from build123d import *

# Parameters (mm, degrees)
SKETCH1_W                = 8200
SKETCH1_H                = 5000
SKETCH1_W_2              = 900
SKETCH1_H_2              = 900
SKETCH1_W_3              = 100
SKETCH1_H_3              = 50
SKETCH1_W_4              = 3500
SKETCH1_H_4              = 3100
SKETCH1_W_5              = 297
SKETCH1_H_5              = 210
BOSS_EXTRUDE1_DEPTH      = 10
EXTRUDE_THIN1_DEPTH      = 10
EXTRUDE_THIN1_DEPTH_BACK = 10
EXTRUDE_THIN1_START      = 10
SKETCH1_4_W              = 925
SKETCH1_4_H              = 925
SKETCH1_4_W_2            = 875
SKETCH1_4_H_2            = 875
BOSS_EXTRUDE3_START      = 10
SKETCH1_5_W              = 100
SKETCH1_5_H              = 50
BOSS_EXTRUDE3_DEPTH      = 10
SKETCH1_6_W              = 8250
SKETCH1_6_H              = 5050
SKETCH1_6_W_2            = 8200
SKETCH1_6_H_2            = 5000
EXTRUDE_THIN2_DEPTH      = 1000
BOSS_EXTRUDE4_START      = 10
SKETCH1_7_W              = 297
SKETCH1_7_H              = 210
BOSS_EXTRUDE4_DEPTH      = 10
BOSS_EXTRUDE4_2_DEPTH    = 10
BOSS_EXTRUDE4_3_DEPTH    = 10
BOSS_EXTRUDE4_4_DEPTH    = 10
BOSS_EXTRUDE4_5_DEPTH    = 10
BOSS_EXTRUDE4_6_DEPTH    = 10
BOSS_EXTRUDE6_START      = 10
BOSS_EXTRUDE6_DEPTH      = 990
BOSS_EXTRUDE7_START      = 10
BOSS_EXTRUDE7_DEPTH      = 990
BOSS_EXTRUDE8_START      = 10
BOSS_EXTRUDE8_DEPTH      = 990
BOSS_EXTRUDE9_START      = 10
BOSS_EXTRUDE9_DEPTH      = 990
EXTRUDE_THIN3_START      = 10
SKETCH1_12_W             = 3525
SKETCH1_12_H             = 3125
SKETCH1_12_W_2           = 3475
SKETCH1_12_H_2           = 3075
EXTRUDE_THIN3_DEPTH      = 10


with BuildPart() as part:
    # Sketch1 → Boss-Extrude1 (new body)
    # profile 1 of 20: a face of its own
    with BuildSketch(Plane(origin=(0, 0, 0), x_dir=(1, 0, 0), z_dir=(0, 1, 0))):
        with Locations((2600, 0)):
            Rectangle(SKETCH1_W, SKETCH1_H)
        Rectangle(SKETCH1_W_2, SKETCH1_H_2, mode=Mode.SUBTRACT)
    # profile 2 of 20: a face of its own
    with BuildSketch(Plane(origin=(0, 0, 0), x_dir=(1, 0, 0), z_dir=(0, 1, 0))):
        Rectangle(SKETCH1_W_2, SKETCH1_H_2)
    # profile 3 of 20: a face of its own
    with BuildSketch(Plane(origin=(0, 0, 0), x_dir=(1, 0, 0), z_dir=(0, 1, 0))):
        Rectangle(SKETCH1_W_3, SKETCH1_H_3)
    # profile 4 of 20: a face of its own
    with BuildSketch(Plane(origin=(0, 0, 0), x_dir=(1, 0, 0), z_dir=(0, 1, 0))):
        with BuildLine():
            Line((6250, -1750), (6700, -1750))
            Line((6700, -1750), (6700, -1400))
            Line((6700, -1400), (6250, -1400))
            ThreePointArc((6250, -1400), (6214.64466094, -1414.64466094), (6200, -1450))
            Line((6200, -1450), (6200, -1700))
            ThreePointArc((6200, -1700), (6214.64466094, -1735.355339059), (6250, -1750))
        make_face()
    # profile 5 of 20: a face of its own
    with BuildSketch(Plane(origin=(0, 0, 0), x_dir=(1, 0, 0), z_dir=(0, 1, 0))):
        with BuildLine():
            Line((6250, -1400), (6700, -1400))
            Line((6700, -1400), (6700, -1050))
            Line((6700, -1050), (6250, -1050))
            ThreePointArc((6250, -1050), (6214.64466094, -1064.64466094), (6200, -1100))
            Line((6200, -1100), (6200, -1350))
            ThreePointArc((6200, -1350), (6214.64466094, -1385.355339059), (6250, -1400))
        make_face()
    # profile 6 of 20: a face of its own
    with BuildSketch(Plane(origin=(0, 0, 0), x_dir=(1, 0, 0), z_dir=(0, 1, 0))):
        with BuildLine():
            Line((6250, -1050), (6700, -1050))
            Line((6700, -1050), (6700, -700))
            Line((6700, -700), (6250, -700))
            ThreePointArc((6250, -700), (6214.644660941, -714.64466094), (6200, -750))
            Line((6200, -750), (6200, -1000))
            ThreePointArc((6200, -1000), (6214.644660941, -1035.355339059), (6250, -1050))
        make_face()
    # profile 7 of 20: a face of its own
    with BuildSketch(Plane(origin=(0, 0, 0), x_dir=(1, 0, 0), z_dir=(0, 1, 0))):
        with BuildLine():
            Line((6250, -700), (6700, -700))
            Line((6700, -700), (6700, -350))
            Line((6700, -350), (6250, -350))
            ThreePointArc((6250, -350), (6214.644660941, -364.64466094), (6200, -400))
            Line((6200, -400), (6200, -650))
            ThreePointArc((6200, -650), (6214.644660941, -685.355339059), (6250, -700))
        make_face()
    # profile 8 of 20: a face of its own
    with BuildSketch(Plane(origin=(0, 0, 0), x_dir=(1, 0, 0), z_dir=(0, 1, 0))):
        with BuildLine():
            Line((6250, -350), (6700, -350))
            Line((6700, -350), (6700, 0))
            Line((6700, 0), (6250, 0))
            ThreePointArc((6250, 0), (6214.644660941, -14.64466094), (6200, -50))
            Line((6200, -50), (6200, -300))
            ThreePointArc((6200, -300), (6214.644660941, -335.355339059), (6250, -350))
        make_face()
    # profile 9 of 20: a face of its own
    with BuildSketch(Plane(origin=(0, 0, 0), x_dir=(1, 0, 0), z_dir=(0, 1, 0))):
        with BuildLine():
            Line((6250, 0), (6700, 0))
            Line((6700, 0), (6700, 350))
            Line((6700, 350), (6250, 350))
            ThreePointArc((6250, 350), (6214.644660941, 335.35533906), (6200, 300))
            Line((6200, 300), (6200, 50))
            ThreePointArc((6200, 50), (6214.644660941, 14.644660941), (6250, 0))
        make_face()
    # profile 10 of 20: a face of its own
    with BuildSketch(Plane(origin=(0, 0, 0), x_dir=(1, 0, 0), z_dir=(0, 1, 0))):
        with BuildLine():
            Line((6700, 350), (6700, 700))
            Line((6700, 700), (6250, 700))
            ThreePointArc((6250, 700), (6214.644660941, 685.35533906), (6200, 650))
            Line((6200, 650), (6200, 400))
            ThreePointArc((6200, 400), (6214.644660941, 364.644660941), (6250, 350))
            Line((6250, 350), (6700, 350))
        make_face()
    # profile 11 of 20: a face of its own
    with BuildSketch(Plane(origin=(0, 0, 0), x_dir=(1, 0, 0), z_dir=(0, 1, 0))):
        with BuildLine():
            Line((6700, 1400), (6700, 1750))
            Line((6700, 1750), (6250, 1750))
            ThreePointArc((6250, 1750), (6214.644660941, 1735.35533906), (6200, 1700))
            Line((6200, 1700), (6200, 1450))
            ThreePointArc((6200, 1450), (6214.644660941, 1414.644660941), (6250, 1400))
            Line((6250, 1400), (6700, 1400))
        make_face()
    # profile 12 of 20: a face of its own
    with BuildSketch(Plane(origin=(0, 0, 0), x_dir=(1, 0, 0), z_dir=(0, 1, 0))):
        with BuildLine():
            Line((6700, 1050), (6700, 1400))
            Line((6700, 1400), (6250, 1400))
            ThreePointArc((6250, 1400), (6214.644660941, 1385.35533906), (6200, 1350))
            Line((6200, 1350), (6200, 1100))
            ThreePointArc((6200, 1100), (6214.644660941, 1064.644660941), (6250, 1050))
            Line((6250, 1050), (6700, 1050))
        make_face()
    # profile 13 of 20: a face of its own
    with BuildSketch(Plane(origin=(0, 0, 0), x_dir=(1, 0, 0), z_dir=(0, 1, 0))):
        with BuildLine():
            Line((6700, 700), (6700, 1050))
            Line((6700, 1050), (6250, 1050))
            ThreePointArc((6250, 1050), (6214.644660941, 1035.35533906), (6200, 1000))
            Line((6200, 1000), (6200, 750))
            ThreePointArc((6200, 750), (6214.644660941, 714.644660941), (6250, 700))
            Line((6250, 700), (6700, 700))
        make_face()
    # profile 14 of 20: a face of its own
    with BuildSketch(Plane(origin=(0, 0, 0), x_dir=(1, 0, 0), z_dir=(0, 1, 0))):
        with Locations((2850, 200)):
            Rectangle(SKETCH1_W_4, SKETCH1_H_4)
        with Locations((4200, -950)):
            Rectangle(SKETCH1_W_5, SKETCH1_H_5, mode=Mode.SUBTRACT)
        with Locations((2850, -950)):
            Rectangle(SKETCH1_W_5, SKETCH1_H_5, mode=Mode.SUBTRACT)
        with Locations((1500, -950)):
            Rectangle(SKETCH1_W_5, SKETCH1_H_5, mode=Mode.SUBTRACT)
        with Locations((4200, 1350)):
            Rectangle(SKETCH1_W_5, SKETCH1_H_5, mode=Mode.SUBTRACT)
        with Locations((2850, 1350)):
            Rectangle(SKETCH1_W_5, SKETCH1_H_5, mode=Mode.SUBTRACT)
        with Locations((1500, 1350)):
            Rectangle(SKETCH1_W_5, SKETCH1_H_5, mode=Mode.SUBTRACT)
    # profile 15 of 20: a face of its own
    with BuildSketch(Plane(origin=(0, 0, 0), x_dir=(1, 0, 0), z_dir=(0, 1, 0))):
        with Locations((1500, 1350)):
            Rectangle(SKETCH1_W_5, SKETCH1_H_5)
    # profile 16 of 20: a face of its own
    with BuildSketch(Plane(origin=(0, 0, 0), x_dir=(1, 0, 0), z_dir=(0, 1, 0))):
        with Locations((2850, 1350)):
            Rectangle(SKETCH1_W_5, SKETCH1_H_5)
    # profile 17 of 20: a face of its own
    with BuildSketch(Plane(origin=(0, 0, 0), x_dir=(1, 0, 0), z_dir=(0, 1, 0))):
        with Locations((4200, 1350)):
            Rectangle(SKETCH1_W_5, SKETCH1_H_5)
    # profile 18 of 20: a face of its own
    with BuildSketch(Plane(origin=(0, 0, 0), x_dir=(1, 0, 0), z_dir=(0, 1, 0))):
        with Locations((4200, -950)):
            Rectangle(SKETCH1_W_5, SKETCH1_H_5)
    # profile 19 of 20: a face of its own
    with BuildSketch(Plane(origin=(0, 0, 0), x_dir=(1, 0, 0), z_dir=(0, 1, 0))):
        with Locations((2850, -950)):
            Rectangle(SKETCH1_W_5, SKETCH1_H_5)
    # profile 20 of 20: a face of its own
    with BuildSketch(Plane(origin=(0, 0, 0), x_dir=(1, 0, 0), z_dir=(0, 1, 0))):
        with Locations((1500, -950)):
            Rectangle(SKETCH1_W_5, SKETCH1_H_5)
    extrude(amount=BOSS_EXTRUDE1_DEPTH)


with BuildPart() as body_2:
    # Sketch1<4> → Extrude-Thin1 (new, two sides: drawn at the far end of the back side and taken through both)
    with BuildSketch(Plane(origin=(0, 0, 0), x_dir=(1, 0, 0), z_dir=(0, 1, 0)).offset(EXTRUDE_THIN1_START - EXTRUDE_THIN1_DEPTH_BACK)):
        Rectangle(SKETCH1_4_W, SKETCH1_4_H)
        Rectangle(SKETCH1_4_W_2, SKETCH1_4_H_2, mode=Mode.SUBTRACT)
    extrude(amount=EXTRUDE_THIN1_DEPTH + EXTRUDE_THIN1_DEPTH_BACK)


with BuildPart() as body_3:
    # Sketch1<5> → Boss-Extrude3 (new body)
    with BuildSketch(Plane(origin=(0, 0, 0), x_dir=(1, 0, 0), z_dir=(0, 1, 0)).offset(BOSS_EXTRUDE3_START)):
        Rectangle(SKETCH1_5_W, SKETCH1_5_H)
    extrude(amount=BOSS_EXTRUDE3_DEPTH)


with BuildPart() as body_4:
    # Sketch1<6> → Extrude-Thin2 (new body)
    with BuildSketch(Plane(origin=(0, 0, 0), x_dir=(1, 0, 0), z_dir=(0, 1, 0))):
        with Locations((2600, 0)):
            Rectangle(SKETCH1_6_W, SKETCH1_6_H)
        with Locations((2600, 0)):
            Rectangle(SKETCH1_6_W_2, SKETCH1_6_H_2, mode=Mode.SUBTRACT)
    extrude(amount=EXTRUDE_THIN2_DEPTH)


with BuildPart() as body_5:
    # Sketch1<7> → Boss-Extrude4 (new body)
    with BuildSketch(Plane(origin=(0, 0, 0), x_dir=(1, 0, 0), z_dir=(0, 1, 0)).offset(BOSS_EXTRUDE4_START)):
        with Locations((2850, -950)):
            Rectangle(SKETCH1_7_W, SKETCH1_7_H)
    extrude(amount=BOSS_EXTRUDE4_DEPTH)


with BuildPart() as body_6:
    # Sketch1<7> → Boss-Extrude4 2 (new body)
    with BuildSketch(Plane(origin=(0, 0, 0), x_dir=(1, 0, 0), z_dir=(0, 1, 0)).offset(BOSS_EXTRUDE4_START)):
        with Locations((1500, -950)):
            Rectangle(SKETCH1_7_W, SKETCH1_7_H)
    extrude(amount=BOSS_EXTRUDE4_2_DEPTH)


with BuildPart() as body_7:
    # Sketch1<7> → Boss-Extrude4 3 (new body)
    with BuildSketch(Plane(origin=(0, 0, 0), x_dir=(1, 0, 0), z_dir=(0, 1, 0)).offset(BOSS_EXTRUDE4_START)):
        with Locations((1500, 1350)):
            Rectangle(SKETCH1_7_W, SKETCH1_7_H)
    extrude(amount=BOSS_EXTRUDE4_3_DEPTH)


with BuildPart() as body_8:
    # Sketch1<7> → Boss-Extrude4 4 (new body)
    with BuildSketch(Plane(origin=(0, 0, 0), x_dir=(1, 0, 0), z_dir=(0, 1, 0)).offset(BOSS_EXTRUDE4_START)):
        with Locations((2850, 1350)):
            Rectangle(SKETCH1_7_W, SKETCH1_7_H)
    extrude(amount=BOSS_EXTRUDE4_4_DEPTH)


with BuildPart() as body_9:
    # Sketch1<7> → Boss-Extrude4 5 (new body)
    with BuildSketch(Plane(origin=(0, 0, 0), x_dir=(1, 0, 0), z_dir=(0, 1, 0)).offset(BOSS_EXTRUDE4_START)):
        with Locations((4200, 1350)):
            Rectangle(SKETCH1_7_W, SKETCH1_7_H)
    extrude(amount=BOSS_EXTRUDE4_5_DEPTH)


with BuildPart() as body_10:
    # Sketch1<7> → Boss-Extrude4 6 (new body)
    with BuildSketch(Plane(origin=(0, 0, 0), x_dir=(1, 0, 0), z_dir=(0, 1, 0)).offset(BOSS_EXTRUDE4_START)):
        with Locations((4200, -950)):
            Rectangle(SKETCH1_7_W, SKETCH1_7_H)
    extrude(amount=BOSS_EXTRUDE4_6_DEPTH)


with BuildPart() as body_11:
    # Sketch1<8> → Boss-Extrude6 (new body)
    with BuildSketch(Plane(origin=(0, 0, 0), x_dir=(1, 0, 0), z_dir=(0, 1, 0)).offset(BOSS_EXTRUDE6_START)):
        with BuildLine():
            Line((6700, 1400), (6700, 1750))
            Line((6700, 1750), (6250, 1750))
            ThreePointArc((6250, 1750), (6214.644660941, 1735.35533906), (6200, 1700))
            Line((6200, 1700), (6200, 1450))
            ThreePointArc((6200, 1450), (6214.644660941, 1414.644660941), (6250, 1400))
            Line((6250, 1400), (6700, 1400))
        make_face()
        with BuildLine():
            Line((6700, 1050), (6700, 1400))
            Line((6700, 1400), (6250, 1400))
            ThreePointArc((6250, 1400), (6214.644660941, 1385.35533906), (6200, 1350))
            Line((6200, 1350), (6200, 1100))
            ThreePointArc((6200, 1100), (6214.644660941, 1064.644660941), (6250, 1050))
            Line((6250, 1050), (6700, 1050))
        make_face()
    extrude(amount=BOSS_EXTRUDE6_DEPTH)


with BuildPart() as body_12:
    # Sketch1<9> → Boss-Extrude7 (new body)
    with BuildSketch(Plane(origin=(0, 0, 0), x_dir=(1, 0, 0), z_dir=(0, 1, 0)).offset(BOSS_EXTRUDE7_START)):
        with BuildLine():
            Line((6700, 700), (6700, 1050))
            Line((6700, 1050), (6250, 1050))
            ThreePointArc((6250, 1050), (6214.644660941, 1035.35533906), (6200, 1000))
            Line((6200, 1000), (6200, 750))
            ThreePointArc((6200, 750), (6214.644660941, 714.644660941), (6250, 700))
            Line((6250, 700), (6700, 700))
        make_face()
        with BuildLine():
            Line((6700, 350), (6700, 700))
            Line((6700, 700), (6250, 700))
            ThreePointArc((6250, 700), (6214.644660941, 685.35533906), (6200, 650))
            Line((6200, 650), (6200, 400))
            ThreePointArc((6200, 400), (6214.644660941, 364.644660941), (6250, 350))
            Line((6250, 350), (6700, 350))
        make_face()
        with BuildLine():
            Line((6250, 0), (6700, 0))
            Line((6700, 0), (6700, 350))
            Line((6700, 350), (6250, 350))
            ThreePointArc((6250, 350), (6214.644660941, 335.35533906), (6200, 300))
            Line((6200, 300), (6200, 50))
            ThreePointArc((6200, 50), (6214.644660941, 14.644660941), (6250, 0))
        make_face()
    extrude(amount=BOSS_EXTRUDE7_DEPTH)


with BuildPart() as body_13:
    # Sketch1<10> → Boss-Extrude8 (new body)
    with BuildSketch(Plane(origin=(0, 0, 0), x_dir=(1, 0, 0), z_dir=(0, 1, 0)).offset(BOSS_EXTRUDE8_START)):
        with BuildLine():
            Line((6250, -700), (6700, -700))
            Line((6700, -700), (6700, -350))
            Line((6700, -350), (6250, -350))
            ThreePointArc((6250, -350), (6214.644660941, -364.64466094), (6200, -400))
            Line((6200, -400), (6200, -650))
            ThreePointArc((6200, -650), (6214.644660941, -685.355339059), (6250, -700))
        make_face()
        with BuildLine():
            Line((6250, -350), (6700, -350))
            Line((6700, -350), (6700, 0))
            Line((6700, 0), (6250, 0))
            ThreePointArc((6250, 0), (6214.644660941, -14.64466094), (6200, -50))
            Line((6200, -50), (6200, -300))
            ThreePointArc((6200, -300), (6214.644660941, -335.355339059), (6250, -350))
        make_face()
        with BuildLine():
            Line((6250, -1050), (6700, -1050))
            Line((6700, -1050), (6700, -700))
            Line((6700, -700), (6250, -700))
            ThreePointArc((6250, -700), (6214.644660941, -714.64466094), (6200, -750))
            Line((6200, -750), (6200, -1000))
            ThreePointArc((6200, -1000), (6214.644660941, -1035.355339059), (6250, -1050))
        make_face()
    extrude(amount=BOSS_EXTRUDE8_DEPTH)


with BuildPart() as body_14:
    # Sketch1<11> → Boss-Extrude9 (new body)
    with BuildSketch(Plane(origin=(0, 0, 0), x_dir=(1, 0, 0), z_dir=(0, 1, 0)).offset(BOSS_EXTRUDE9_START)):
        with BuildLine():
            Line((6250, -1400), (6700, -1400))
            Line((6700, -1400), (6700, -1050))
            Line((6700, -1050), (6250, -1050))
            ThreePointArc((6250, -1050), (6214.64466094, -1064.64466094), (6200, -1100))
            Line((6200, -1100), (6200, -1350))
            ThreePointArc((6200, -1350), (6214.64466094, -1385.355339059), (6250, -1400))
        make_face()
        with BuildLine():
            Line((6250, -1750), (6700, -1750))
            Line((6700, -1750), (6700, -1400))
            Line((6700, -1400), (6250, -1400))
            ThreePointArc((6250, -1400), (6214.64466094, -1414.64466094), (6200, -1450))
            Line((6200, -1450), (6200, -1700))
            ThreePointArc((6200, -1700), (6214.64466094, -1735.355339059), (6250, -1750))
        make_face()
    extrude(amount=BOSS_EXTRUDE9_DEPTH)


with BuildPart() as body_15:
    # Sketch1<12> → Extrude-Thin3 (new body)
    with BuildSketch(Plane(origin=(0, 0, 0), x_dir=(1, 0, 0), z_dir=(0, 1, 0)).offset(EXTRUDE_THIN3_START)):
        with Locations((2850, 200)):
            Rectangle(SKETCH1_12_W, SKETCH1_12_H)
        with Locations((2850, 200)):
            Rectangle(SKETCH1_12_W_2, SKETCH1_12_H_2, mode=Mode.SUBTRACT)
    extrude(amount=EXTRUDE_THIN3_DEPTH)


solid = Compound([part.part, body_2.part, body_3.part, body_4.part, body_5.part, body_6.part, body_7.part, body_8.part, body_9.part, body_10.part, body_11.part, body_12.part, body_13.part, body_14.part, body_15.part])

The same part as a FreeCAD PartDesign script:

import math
import FreeCAD as App
import Part
import Sketcher
from FreeCAD import Vector
Q = App.Units.Quantity


def add_polygon(sketch, points):
    """Adds a closed chain of lines whose ends are joined by coincident constraints."""
    first, n = sketch.GeometryCount, len(points)
    for a, b in zip(points, points[1:] + points[:1]):
        sketch.addGeometry(Part.LineSegment(App.Vector(*a, 0), App.Vector(*b, 0)), False)
    for i in range(n):
        sketch.addConstraint(Sketcher.Constraint("Coincident", first + i, 2, first + (i + 1) % n, 1))

doc = App.newDocument("Part")
params = doc.addObject("Spreadsheet::Sheet", "Params")
for row, (alias, value) in enumerate([
    ("sketch1_width", "8200 mm"),
    ("sketch1_height", "5000 mm"),
    ("pad1_length", "10 mm"),
    ("sketch2_width", "925 mm"),
    ("sketch2_width2", "875 mm"),
    ("pad2_length", "10 mm"),
    ("pad2_length2", "10 mm"),
    ("sketch3_width", "100 mm"),
    ("sketch3_height", "50 mm"),
    ("pad3_length", "10 mm"),
    ("sketch4_width", "8250 mm"),
    ("sketch4_width2", "8200 mm"),
    ("sketch4_height", "5050 mm"),
    ("sketch4_height2", "5000 mm"),
    ("pad4_length", "1000 mm"),
    ("sketch5_width", "297 mm"),
    ("sketch5_height", "210 mm"),
    ("pad5_length", "10 mm"),
    ("sketch6_width", "297 mm"),
    ("sketch6_height", "210 mm"),
    ("pad6_length", "10 mm"),
    ("sketch7_width", "297 mm"),
    ("sketch7_height", "210 mm"),
    ("pad7_length", "10 mm"),
    ("sketch8_width", "297 mm"),
    ("sketch8_height", "210 mm"),
    ("pad8_length", "10 mm"),
    ("sketch9_width", "297 mm"),
    ("sketch9_height", "210 mm"),
    ("pad9_length", "10 mm"),
    ("sketch10_width", "297 mm"),
    ("sketch10_height", "210 mm"),
    ("pad10_length", "10 mm"),
    ("sketch11_radius", "50 mm"),
    ("sketch11_width", "450 mm"),
    ("sketch11_height", "250 mm"),
    ("pad11_length", "990 mm"),
    ("sketch12_radius", "50 mm"),
    ("sketch12_width", "450 mm"),
    ("sketch12_height", "250 mm"),
    ("pad12_length", "990 mm"),
    ("sketch13_radius", "50 mm"),
    ("sketch13_width", "450 mm"),
    ("sketch13_height", "250 mm"),
    ("pad13_length", "990 mm"),
    ("sketch14_radius", "50 mm"),
    ("sketch14_width", "450 mm"),
    ("sketch14_height", "250 mm"),
    ("pad14_length", "990 mm"),
    ("sketch15_width", "3525 mm"),
    ("sketch15_width2", "3475 mm"),
    ("sketch15_height", "3125 mm"),
    ("sketch15_height2", "3075 mm"),
    ("pad15_length", "10 mm"),
], start=1):
    params.set(f"A{row}", alias)
    params.set(f"B{row}", "=" + value)
    params.setAlias(f"B{row}", alias)

body = doc.addObject("PartDesign::Body", "Body")

# Sketch on XZ plane
sketch1 = doc.addObject("Sketcher::SketchObject", "Sketch")
body.addObject(sketch1)
sketch1.AttachmentSupport = (doc.XZ_Plane, [""])
sketch1.MapMode = "FlatFace"
add_polygon(sketch1, [(-1500, -2500), (-1500, 2500), (6700, 2500), (6700, -2500)])  # lines 0-3
sketch1.addConstraint([
    Sketcher.Constraint("Vertical", 0),
    Sketcher.Constraint("Horizontal", 1),
    Sketcher.Constraint("Vertical", 2),
    Sketcher.Constraint("Horizontal", 3),
    Sketcher.Constraint("DistanceX", 1, 1, 1, 2, Q("8200 mm")),
    Sketcher.Constraint("DistanceY", 0, 1, 0, 2, Q("5000 mm")),
    Sketcher.Constraint("DistanceX", 0, 2, -1, 1, Q("1500 mm")),
    Sketcher.Constraint("DistanceY", -1, 1, 0, 2, Q("2500 mm")),
])
sketch1.setExpression("Constraints[8]", "Params.sketch1_width")
sketch1.setExpression("Constraints[9]", "Params.sketch1_height")
pad1 = doc.addObject("PartDesign::Pad", "Pad")
body.addObject(pad1)
pad1.Profile = sketch1
pad1.setExpression("Length", "Params.pad1_length")
pad1.Reversed = True
body2 = doc.addObject("PartDesign::Body", "Body001")

# Sketch on XZ plane
sketch2 = doc.addObject("Sketcher::SketchObject", "Sketch001")
body2.addObject(sketch2)
sketch2.AttachmentSupport = (doc.getObject("XZ_Plane001"), [""])
sketch2.MapMode = "FlatFace"
sketch2.AttachmentOffset = App.Placement(Vector(0, 0, -10), App.Rotation())
add_polygon(sketch2, [(-462, -462), (-462, 462), (462, 462), (462, -462)])  # lines 0-3
add_polygon(sketch2, [(438, 438), (-438, 438), (-438, -438), (438, -438)])  # lines 4-7
sketch2.addConstraint([
    Sketcher.Constraint("Vertical", 0),
    Sketcher.Constraint("Horizontal", 1),
    Sketcher.Constraint("Vertical", 2),
    Sketcher.Constraint("Horizontal", 3),
    Sketcher.Constraint("Horizontal", 4),
    Sketcher.Constraint("Vertical", 5),
    Sketcher.Constraint("Horizontal", 6),
    Sketcher.Constraint("Vertical", 7),
    Sketcher.Constraint("Symmetric", 0, 2, 2, 2, -1, 1),
    Sketcher.Constraint("Symmetric", 4, 2, 6, 2, -1, 1),
    Sketcher.Constraint("Equal", 3, 0),
    Sketcher.Constraint("Equal", 6, 5),
    Sketcher.Constraint("DistanceX", 1, 1, 1, 2, Q("925 mm")),
    Sketcher.Constraint("DistanceX", 4, 2, 4, 1, Q("875 mm")),
])
sketch2.setExpression("Constraints[20]", "Params.sketch2_width")
sketch2.setExpression("Constraints[21]", "Params.sketch2_width2")
pad2 = doc.addObject("PartDesign::Pad", "Pad001")
body2.addObject(pad2)
pad2.Profile = sketch2
pad2.Type = "TwoLengths"
pad2.setExpression("Length", "Params.pad2_length")
pad2.setExpression("Length2", "Params.pad2_length2")
pad2.Reversed = True
body3 = doc.addObject("PartDesign::Body", "Body002")

# Sketch on XZ plane
sketch3 = doc.addObject("Sketcher::SketchObject", "Sketch002")
body3.addObject(sketch3)
sketch3.AttachmentSupport = (doc.getObject("XZ_Plane002"), [""])
sketch3.MapMode = "FlatFace"
sketch3.AttachmentOffset = App.Placement(Vector(0, 0, -10), App.Rotation())
add_polygon(sketch3, [(-50, -25), (-50, 25), (50, 25), (50, -25)])  # lines 0-3
sketch3.addConstraint([
    Sketcher.Constraint("Vertical", 0),
    Sketcher.Constraint("Horizontal", 1),
    Sketcher.Constraint("Vertical", 2),
    Sketcher.Constraint("Horizontal", 3),
    Sketcher.Constraint("Symmetric", 0, 2, 2, 2, -1, 1),
    Sketcher.Constraint("DistanceX", 1, 1, 1, 2, Q("100 mm")),
    Sketcher.Constraint("DistanceY", 0, 1, 0, 2, Q("50 mm")),
])
sketch3.setExpression("Constraints[9]", "Params.sketch3_width")
sketch3.setExpression("Constraints[10]", "Params.sketch3_height")
pad3 = doc.addObject("PartDesign::Pad", "Pad002")
body3.addObject(pad3)
pad3.Profile = sketch3
pad3.setExpression("Length", "Params.pad3_length")
pad3.Reversed = True
body4 = doc.addObject("PartDesign::Body", "Body003")

# Sketch on XZ plane
sketch4 = doc.addObject("Sketcher::SketchObject", "Sketch003")
body4.addObject(sketch4)
sketch4.AttachmentSupport = (doc.getObject("XZ_Plane003"), [""])
sketch4.MapMode = "FlatFace"
add_polygon(sketch4, [(-1525, -2525), (-1525, 2525), (6725, 2525), (6725, -2525)])  # lines 0-3
add_polygon(sketch4, [(6700, 2500), (-1500, 2500), (-1500, -2500), (6700, -2500)])  # lines 4-7
sketch4.addConstraint([
    Sketcher.Constraint("Vertical", 0),
    Sketcher.Constraint("Horizontal", 1),
    Sketcher.Constraint("Vertical", 2),
    Sketcher.Constraint("Horizontal", 3),
    Sketcher.Constraint("Horizontal", 4),
    Sketcher.Constraint("Vertical", 5),
    Sketcher.Constraint("Horizontal", 6),
    Sketcher.Constraint("Vertical", 7),
    Sketcher.Constraint("DistanceX", 1, 1, 1, 2, Q("8250 mm")),
    Sketcher.Constraint("DistanceX", 4, 2, 4, 1, Q("8200 mm")),
    Sketcher.Constraint("DistanceY", 0, 1, 0, 2, Q("5050 mm")),
    Sketcher.Constraint("DistanceY", 5, 2, 5, 1, Q("5000 mm")),
    Sketcher.Constraint("DistanceX", 0, 2, -1, 1, Q("1525 mm")),
    Sketcher.Constraint("DistanceY", -1, 1, 0, 2, Q("2525 mm")),
    Sketcher.Constraint("DistanceX", 4, 2, -1, 1, Q("1500 mm")),
    Sketcher.Constraint("DistanceY", -1, 1, 4, 2, Q("2500 mm")),
])
sketch4.setExpression("Constraints[16]", "Params.sketch4_width")
sketch4.setExpression("Constraints[17]", "Params.sketch4_width2")
sketch4.setExpression("Constraints[18]", "Params.sketch4_height")
sketch4.setExpression("Constraints[19]", "Params.sketch4_height2")
pad4 = doc.addObject("PartDesign::Pad", "Pad003")
body4.addObject(pad4)
pad4.Profile = sketch4
pad4.setExpression("Length", "Params.pad4_length")
pad4.Reversed = True
body5 = doc.addObject("PartDesign::Body", "Body004")

# Sketch on XZ plane
sketch5 = doc.addObject("Sketcher::SketchObject", "Sketch004")
body5.addObject(sketch5)
sketch5.AttachmentSupport = (doc.getObject("XZ_Plane004"), [""])
sketch5.MapMode = "FlatFace"
sketch5.AttachmentOffset = App.Placement(Vector(0, 0, -10), App.Rotation())
add_polygon(sketch5, [(2702, 845), (2702, 1055), (2998, 1055), (2998, 845)])  # lines 0-3
sketch5.addConstraint([
    Sketcher.Constraint("Vertical", 0),
    Sketcher.Constraint("Horizontal", 1),
    Sketcher.Constraint("Vertical", 2),
    Sketcher.Constraint("Horizontal", 3),
    Sketcher.Constraint("DistanceX", 1, 1, 1, 2, Q("297 mm")),
    Sketcher.Constraint("DistanceY", 0, 1, 0, 2, Q("210 mm")),
    Sketcher.Constraint("DistanceY", -1, 1, 0, 2, Q("1055 mm")),
    Sketcher.Constraint("DistanceX", -1, 1, 0, 2, Q("2701.5 mm")),
])
sketch5.setExpression("Constraints[8]", "Params.sketch5_width")
sketch5.setExpression("Constraints[9]", "Params.sketch5_height")
pad5 = doc.addObject("PartDesign::Pad", "Pad004")
body5.addObject(pad5)
pad5.Profile = sketch5
pad5.setExpression("Length", "Params.pad5_length")
pad5.Reversed = True
body6 = doc.addObject("PartDesign::Body", "Body005")

# Sketch on XZ plane
sketch6 = doc.addObject("Sketcher::SketchObject", "Sketch005")
body6.addObject(sketch6)
sketch6.AttachmentSupport = (doc.getObject("XZ_Plane005"), [""])
sketch6.MapMode = "FlatFace"
sketch6.AttachmentOffset = App.Placement(Vector(0, 0, -10), App.Rotation())
add_polygon(sketch6, [(1352, 845), (1352, 1055), (1648, 1055), (1648, 845)])  # lines 0-3
sketch6.addConstraint([
    Sketcher.Constraint("Vertical", 0),
    Sketcher.Constraint("Horizontal", 1),
    Sketcher.Constraint("Vertical", 2),
    Sketcher.Constraint("Horizontal", 3),
    Sketcher.Constraint("DistanceX", 1, 1, 1, 2, Q("297 mm")),
    Sketcher.Constraint("DistanceY", 0, 1, 0, 2, Q("210 mm")),
    Sketcher.Constraint("DistanceY", -1, 1, 0, 2, Q("1055 mm")),
    Sketcher.Constraint("DistanceX", -1, 1, 0, 2, Q("1351.5 mm")),
])
sketch6.setExpression("Constraints[8]", "Params.sketch6_width")
sketch6.setExpression("Constraints[9]", "Params.sketch6_height")
pad6 = doc.addObject("PartDesign::Pad", "Pad005")
body6.addObject(pad6)
pad6.Profile = sketch6
pad6.setExpression("Length", "Params.pad6_length")
pad6.Reversed = True
body7 = doc.addObject("PartDesign::Body", "Body006")

# Sketch on XZ plane
sketch7 = doc.addObject("Sketcher::SketchObject", "Sketch006")
body7.addObject(sketch7)
sketch7.AttachmentSupport = (doc.getObject("XZ_Plane006"), [""])
sketch7.MapMode = "FlatFace"
sketch7.AttachmentOffset = App.Placement(Vector(0, 0, -10), App.Rotation())
add_polygon(sketch7, [(1352, -1455), (1352, -1245), (1648, -1245), (1648, -1455)])  # lines 0-3
sketch7.addConstraint([
    Sketcher.Constraint("Vertical", 0),
    Sketcher.Constraint("Horizontal", 1),
    Sketcher.Constraint("Vertical", 2),
    Sketcher.Constraint("Horizontal", 3),
    Sketcher.Constraint("DistanceX", 1, 1, 1, 2, Q("297 mm")),
    Sketcher.Constraint("DistanceY", 0, 1, 0, 2, Q("210 mm")),
    Sketcher.Constraint("DistanceY", 0, 2, -1, 1, Q("1245 mm")),
    Sketcher.Constraint("DistanceX", -1, 1, 0, 2, Q("1351.5 mm")),
])
sketch7.setExpression("Constraints[8]", "Params.sketch7_width")
sketch7.setExpression("Constraints[9]", "Params.sketch7_height")
pad7 = doc.addObject("PartDesign::Pad", "Pad006")
body7.addObject(pad7)
pad7.Profile = sketch7
pad7.setExpression("Length", "Params.pad7_length")
pad7.Reversed = True
body8 = doc.addObject("PartDesign::Body", "Body007")

# Sketch on XZ plane
sketch8 = doc.addObject("Sketcher::SketchObject", "Sketch007")
body8.addObject(sketch8)
sketch8.AttachmentSupport = (doc.getObject("XZ_Plane007"), [""])
sketch8.MapMode = "FlatFace"
sketch8.AttachmentOffset = App.Placement(Vector(0, 0, -10), App.Rotation())
add_polygon(sketch8, [(2702, -1455), (2702, -1245), (2998, -1245), (2998, -1455)])  # lines 0-3
sketch8.addConstraint([
    Sketcher.Constraint("Vertical", 0),
    Sketcher.Constraint("Horizontal", 1),
    Sketcher.Constraint("Vertical", 2),
    Sketcher.Constraint("Horizontal", 3),
    Sketcher.Constraint("DistanceX", 1, 1, 1, 2, Q("297 mm")),
    Sketcher.Constraint("DistanceY", 0, 1, 0, 2, Q("210 mm")),
    Sketcher.Constraint("DistanceY", 0, 2, -1, 1, Q("1245 mm")),
    Sketcher.Constraint("DistanceX", -1, 1, 0, 2, Q("2701.5 mm")),
])
sketch8.setExpression("Constraints[8]", "Params.sketch8_width")
sketch8.setExpression("Constraints[9]", "Params.sketch8_height")
pad8 = doc.addObject("PartDesign::Pad", "Pad007")
body8.addObject(pad8)
pad8.Profile = sketch8
pad8.setExpression("Length", "Params.pad8_length")
pad8.Reversed = True
body9 = doc.addObject("PartDesign::Body", "Body008")

# Sketch on XZ plane
sketch9 = doc.addObject("Sketcher::SketchObject", "Sketch008")
body9.addObject(sketch9)
sketch9.AttachmentSupport = (doc.getObject("XZ_Plane008"), [""])
sketch9.MapMode = "FlatFace"
sketch9.AttachmentOffset = App.Placement(Vector(0, 0, -10), App.Rotation())
add_polygon(sketch9, [(4052, -1455), (4052, -1245), (4348, -1245), (4348, -1455)])  # lines 0-3
sketch9.addConstraint([
    Sketcher.Constraint("Vertical", 0),
    Sketcher.Constraint("Horizontal", 1),
    Sketcher.Constraint("Vertical", 2),
    Sketcher.Constraint("Horizontal", 3),
    Sketcher.Constraint("DistanceX", 1, 1, 1, 2, Q("297 mm")),
    Sketcher.Constraint("DistanceY", 0, 1, 0, 2, Q("210 mm")),
    Sketcher.Constraint("DistanceY", 0, 2, -1, 1, Q("1245 mm")),
    Sketcher.Constraint("DistanceX", -1, 1, 0, 2, Q("4051.5 mm")),
])
sketch9.setExpression("Constraints[8]", "Params.sketch9_width")
sketch9.setExpression("Constraints[9]", "Params.sketch9_height")
pad9 = doc.addObject("PartDesign::Pad", "Pad008")
body9.addObject(pad9)
pad9.Profile = sketch9
pad9.setExpression("Length", "Params.pad9_length")
pad9.Reversed = True
body10 = doc.addObject("PartDesign::Body", "Body009")

# Sketch on XZ plane
sketch10 = doc.addObject("Sketcher::SketchObject", "Sketch009")
body10.addObject(sketch10)
sketch10.AttachmentSupport = (doc.getObject("XZ_Plane009"), [""])
sketch10.MapMode = "FlatFace"
sketch10.AttachmentOffset = App.Placement(Vector(0, 0, -10), App.Rotation())
add_polygon(sketch10, [(4052, 845), (4052, 1055), (4348, 1055), (4348, 845)])  # lines 0-3
sketch10.addConstraint([
    Sketcher.Constraint("Vertical", 0),
    Sketcher.Constraint("Horizontal", 1),
    Sketcher.Constraint("Vertical", 2),
    Sketcher.Constraint("Horizontal", 3),
    Sketcher.Constraint("DistanceX", 1, 1, 1, 2, Q("297 mm")),
    Sketcher.Constraint("DistanceY", 0, 1, 0, 2, Q("210 mm")),
    Sketcher.Constraint("DistanceY", -1, 1, 0, 2, Q("1055 mm")),
    Sketcher.Constraint("DistanceX", -1, 1, 0, 2, Q("4051.5 mm")),
])
sketch10.setExpression("Constraints[8]", "Params.sketch10_width")
sketch10.setExpression("Constraints[9]", "Params.sketch10_height")
pad10 = doc.addObject("PartDesign::Pad", "Pad009")
body10.addObject(pad10)
pad10.Profile = sketch10
pad10.setExpression("Length", "Params.pad10_length")
pad10.Reversed = True
body11 = doc.addObject("PartDesign::Body", "Body010")

# Sketch on XZ plane
sketch11 = doc.addObject("Sketcher::SketchObject", "Sketch010")
body11.addObject(sketch11)
sketch11.AttachmentSupport = (doc.getObject("XZ_Plane010"), [""])
sketch11.MapMode = "FlatFace"
sketch11.AttachmentOffset = App.Placement(Vector(0, 0, -10), App.Rotation())
sketch11.addGeometry([
    Part.LineSegment(Vector(6700, -1750, 0), Vector(6250, -1750, 0)),  # 0
    Part.ArcOfCircle(Part.Circle(Vector(6250, -1700, 0), Vector(0, 0, 1), 50), math.radians(180), math.radians(270)),  # 1
    Part.LineSegment(Vector(6200, -1700, 0), Vector(6200, -1450, 0)),  # 2
    Part.ArcOfCircle(Part.Circle(Vector(6250, -1450, 0), Vector(0, 0, 1), 50), math.radians(90), math.radians(180)),  # 3
    Part.ArcOfCircle(Part.Circle(Vector(6250, -1350, 0), Vector(0, 0, 1), 50), math.radians(180), math.radians(270)),  # 4
    Part.LineSegment(Vector(6200, -1350, 0), Vector(6200, -1100, 0)),  # 5
    Part.ArcOfCircle(Part.Circle(Vector(6250, -1100, 0), Vector(0, 0, 1), 50), math.radians(90), math.radians(180)),  # 6
    Part.LineSegment(Vector(6250, -1050, 0), Vector(6700, -1050, 0)),  # 7
    Part.LineSegment(Vector(6700, -1050, 0), Vector(6700, -1750, 0)),  # 8
], False)
sketch11.addConstraint([
    Sketcher.Constraint("Tangent", 0, 2, 1, 2),
    Sketcher.Constraint("Tangent", 1, 1, 2, 1),
    Sketcher.Constraint("Tangent", 2, 2, 3, 2),
    Sketcher.Constraint("Tangent", 3, 1, 4, 2),
    Sketcher.Constraint("Tangent", 4, 1, 5, 1),
    Sketcher.Constraint("Tangent", 5, 2, 6, 2),
    Sketcher.Constraint("Tangent", 6, 1, 7, 1),
    Sketcher.Constraint("Coincident", 7, 2, 8, 1),
    Sketcher.Constraint("Coincident", 8, 2, 0, 1),
    Sketcher.Constraint("Horizontal", 0),
    Sketcher.Constraint("Vertical", 2),
    Sketcher.Constraint("Vertical", 5),
    Sketcher.Constraint("Horizontal", 7),
    Sketcher.Constraint("Vertical", 8),
    Sketcher.Constraint("Equal", 1, 3),
    Sketcher.Constraint("Equal", 3, 4),
    Sketcher.Constraint("Equal", 4, 6),
    Sketcher.Constraint("Vertical", 3, 3, 4, 3),
    Sketcher.Constraint("Equal", 2, 5),
    Sketcher.Constraint("Radius", 1, Q("50 mm")),
    Sketcher.Constraint("DistanceX", 0, 2, 0, 1, Q("450 mm")),
    Sketcher.Constraint("DistanceY", 2, 1, 2, 2, Q("250 mm")),
    Sketcher.Constraint("DistanceX", -1, 1, 1, 3, Q("6250 mm")),
    Sketcher.Constraint("DistanceY", 1, 3, -1, 1, Q("1700 mm")),
])
sketch11.setExpression("Constraints[19]", "Params.sketch11_radius")
sketch11.setExpression("Constraints[20]", "Params.sketch11_width")
sketch11.setExpression("Constraints[21]", "Params.sketch11_height")
pad11 = doc.addObject("PartDesign::Pad", "Pad010")
body11.addObject(pad11)
pad11.Profile = sketch11
pad11.setExpression("Length", "Params.pad11_length")
pad11.Reversed = True
body12 = doc.addObject("PartDesign::Body", "Body011")

# Sketch on XZ plane
sketch12 = doc.addObject("Sketcher::SketchObject", "Sketch011")
body12.addObject(sketch12)
sketch12.AttachmentSupport = (doc.getObject("XZ_Plane011"), [""])
sketch12.MapMode = "FlatFace"
sketch12.AttachmentOffset = App.Placement(Vector(0, 0, -10), App.Rotation())
sketch12.addGeometry([
    Part.LineSegment(Vector(6700, -1050, 0), Vector(6250, -1050, 0)),  # 0
    Part.ArcOfCircle(Part.Circle(Vector(6250, -1000, 0), Vector(0, 0, 1), 50), math.radians(180), math.radians(270)),  # 1
    Part.LineSegment(Vector(6200, -1000, 0), Vector(6200, -750, 0)),  # 2
    Part.ArcOfCircle(Part.Circle(Vector(6250, -750, 0), Vector(0, 0, 1), 50), math.radians(90), math.radians(180)),  # 3
    Part.ArcOfCircle(Part.Circle(Vector(6250, -650, 0), Vector(0, 0, 1), 50), math.radians(180), math.radians(270)),  # 4
    Part.LineSegment(Vector(6200, -650, 0), Vector(6200, -400, 0)),  # 5
    Part.ArcOfCircle(Part.Circle(Vector(6250, -400, 0), Vector(0, 0, 1), 50), math.radians(90), math.radians(180)),  # 6
    Part.ArcOfCircle(Part.Circle(Vector(6250, -300, 0), Vector(0, 0, 1), 50), math.radians(180), math.radians(270)),  # 7
    Part.LineSegment(Vector(6200, -300, 0), Vector(6200, -50, 0)),  # 8
    Part.ArcOfCircle(Part.Circle(Vector(6250, -50, 0), Vector(0, 0, 1), 50), math.radians(90), math.radians(180)),  # 9
    Part.LineSegment(Vector(6250, 0, 0), Vector(6700, 0, 0)),  # 10
    Part.LineSegment(Vector(6700, 0, 0), Vector(6700, -1050, 0)),  # 11
], False)
sketch12.addConstraint([
    Sketcher.Constraint("Tangent", 0, 2, 1, 2),
    Sketcher.Constraint("Tangent", 1, 1, 2, 1),
    Sketcher.Constraint("Tangent", 2, 2, 3, 2),
    Sketcher.Constraint("Tangent", 3, 1, 4, 2),
    Sketcher.Constraint("Tangent", 4, 1, 5, 1),
    Sketcher.Constraint("Tangent", 5, 2, 6, 2),
    Sketcher.Constraint("Tangent", 6, 1, 7, 2),
    Sketcher.Constraint("Tangent", 7, 1, 8, 1),
    Sketcher.Constraint("Tangent", 8, 2, 9, 2),
    Sketcher.Constraint("Tangent", 9, 1, 10, 1),
    Sketcher.Constraint("Coincident", 10, 2, 11, 1),
    Sketcher.Constraint("Coincident", 11, 2, 0, 1),
    Sketcher.Constraint("Horizontal", 0),
    Sketcher.Constraint("Vertical", 2),
    Sketcher.Constraint("Vertical", 5),
    Sketcher.Constraint("Vertical", 8),
    Sketcher.Constraint("Horizontal", 10),
    Sketcher.Constraint("Vertical", 11),
    Sketcher.Constraint("Equal", 1, 3),
    Sketcher.Constraint("Equal", 3, 4),
    Sketcher.Constraint("Equal", 4, 6),
    Sketcher.Constraint("Equal", 6, 7),
    Sketcher.Constraint("Equal", 7, 9),
    Sketcher.Constraint("PointOnObject", 9, 1, -1),
    Sketcher.Constraint("Vertical", 3, 3, 4, 3),
    Sketcher.Constraint("Vertical", 6, 3, 7, 3),
    Sketcher.Constraint("Equal", 2, 5),
    Sketcher.Constraint("Equal", 5, 8),
    Sketcher.Constraint("Radius", 1, Q("50 mm")),
    Sketcher.Constraint("DistanceX", 0, 2, 0, 1, Q("450 mm")),
    Sketcher.Constraint("DistanceY", 2, 1, 2, 2, Q("250 mm")),
    Sketcher.Constraint("DistanceX", -1, 1, 1, 3, Q("6250 mm")),
])
sketch12.setExpression("Constraints[28]", "Params.sketch12_radius")
sketch12.setExpression("Constraints[29]", "Params.sketch12_width")
sketch12.setExpression("Constraints[30]", "Params.sketch12_height")
pad12 = doc.addObject("PartDesign::Pad", "Pad011")
body12.addObject(pad12)
pad12.Profile = sketch12
pad12.setExpression("Length", "Params.pad12_length")
pad12.Reversed = True
body13 = doc.addObject("PartDesign::Body", "Body012")

# Sketch on XZ plane
sketch13 = doc.addObject("Sketcher::SketchObject", "Sketch012")
body13.addObject(sketch13)
sketch13.AttachmentSupport = (doc.getObject("XZ_Plane012"), [""])
sketch13.MapMode = "FlatFace"
sketch13.AttachmentOffset = App.Placement(Vector(0, 0, -10), App.Rotation())
sketch13.addGeometry([
    Part.LineSegment(Vector(6700, 0, 0), Vector(6250, 0, 0)),  # 0
    Part.ArcOfCircle(Part.Circle(Vector(6250, 50, 0), Vector(0, 0, 1), 50), math.radians(180), math.radians(270)),  # 1
    Part.LineSegment(Vector(6200, 50, 0), Vector(6200, 300, 0)),  # 2
    Part.ArcOfCircle(Part.Circle(Vector(6250, 300, 0), Vector(0, 0, 1), 50), math.radians(90), math.radians(180)),  # 3
    Part.ArcOfCircle(Part.Circle(Vector(6250, 400, 0), Vector(0, 0, 1), 50), math.radians(180), math.radians(270)),  # 4
    Part.LineSegment(Vector(6200, 400, 0), Vector(6200, 650, 0)),  # 5
    Part.ArcOfCircle(Part.Circle(Vector(6250, 650, 0), Vector(0, 0, 1), 50), math.radians(90), math.radians(180)),  # 6
    Part.ArcOfCircle(Part.Circle(Vector(6250, 750, 0), Vector(0, 0, 1), 50), math.radians(180), math.radians(270)),  # 7
    Part.LineSegment(Vector(6200, 750, 0), Vector(6200, 1000, 0)),  # 8
    Part.ArcOfCircle(Part.Circle(Vector(6250, 1000, 0), Vector(0, 0, 1), 50), math.radians(90), math.radians(180)),  # 9
    Part.LineSegment(Vector(6250, 1050, 0), Vector(6700, 1050, 0)),  # 10
    Part.LineSegment(Vector(6700, 1050, 0), Vector(6700, 0, 0)),  # 11
], False)
sketch13.addConstraint([
    Sketcher.Constraint("Tangent", 0, 2, 1, 2),
    Sketcher.Constraint("Tangent", 1, 1, 2, 1),
    Sketcher.Constraint("Tangent", 2, 2, 3, 2),
    Sketcher.Constraint("Tangent", 3, 1, 4, 2),
    Sketcher.Constraint("Tangent", 4, 1, 5, 1),
    Sketcher.Constraint("Tangent", 5, 2, 6, 2),
    Sketcher.Constraint("Tangent", 6, 1, 7, 2),
    Sketcher.Constraint("Tangent", 7, 1, 8, 1),
    Sketcher.Constraint("Tangent", 8, 2, 9, 2),
    Sketcher.Constraint("Tangent", 9, 1, 10, 1),
    Sketcher.Constraint("Coincident", 10, 2, 11, 1),
    Sketcher.Constraint("Coincident", 11, 2, 0, 1),
    Sketcher.Constraint("Horizontal", 0),
    Sketcher.Constraint("Vertical", 2),
    Sketcher.Constraint("Vertical", 5),
    Sketcher.Constraint("Vertical", 8),
    Sketcher.Constraint("Horizontal", 10),
    Sketcher.Constraint("Vertical", 11),
    Sketcher.Constraint("Equal", 1, 3),
    Sketcher.Constraint("Equal", 3, 4),
    Sketcher.Constraint("Equal", 4, 6),
    Sketcher.Constraint("Equal", 6, 7),
    Sketcher.Constraint("Equal", 7, 9),
    Sketcher.Constraint("PointOnObject", 0, 2, -1),
    Sketcher.Constraint("Vertical", 3, 3, 4, 3),
    Sketcher.Constraint("Vertical", 6, 3, 7, 3),
    Sketcher.Constraint("Equal", 2, 5),
    Sketcher.Constraint("Equal", 5, 8),
    Sketcher.Constraint("Radius", 1, Q("50 mm")),
    Sketcher.Constraint("DistanceX", 0, 2, 0, 1, Q("450 mm")),
    Sketcher.Constraint("DistanceY", 2, 1, 2, 2, Q("250 mm")),
    Sketcher.Constraint("DistanceX", -1, 1, 1, 3, Q("6250 mm")),
])
sketch13.setExpression("Constraints[28]", "Params.sketch13_radius")
sketch13.setExpression("Constraints[29]", "Params.sketch13_width")
sketch13.setExpression("Constraints[30]", "Params.sketch13_height")
pad13 = doc.addObject("PartDesign::Pad", "Pad012")
body13.addObject(pad13)
pad13.Profile = sketch13
pad13.setExpression("Length", "Params.pad13_length")
pad13.Reversed = True
body14 = doc.addObject("PartDesign::Body", "Body013")

# Sketch on XZ plane
sketch14 = doc.addObject("Sketcher::SketchObject", "Sketch013")
body14.addObject(sketch14)
sketch14.AttachmentSupport = (doc.getObject("XZ_Plane013"), [""])
sketch14.MapMode = "FlatFace"
sketch14.AttachmentOffset = App.Placement(Vector(0, 0, -10), App.Rotation())
sketch14.addGeometry([
    Part.LineSegment(Vector(6700, 1050, 0), Vector(6250, 1050, 0)),  # 0
    Part.ArcOfCircle(Part.Circle(Vector(6250, 1100, 0), Vector(0, 0, 1), 50), math.radians(180), math.radians(270)),  # 1
    Part.LineSegment(Vector(6200, 1100, 0), Vector(6200, 1350, 0)),  # 2
    Part.ArcOfCircle(Part.Circle(Vector(6250, 1350, 0), Vector(0, 0, 1), 50), math.radians(90), math.radians(180)),  # 3
    Part.ArcOfCircle(Part.Circle(Vector(6250, 1450, 0), Vector(0, 0, 1), 50), math.radians(180), math.radians(270)),  # 4
    Part.LineSegment(Vector(6200, 1450, 0), Vector(6200, 1700, 0)),  # 5
    Part.ArcOfCircle(Part.Circle(Vector(6250, 1700, 0), Vector(0, 0, 1), 50), math.radians(90), math.radians(180)),  # 6
    Part.LineSegment(Vector(6250, 1750, 0), Vector(6700, 1750, 0)),  # 7
    Part.LineSegment(Vector(6700, 1750, 0), Vector(6700, 1050, 0)),  # 8
], False)
sketch14.addConstraint([
    Sketcher.Constraint("Tangent", 0, 2, 1, 2),
    Sketcher.Constraint("Tangent", 1, 1, 2, 1),
    Sketcher.Constraint("Tangent", 2, 2, 3, 2),
    Sketcher.Constraint("Tangent", 3, 1, 4, 2),
    Sketcher.Constraint("Tangent", 4, 1, 5, 1),
    Sketcher.Constraint("Tangent", 5, 2, 6, 2),
    Sketcher.Constraint("Tangent", 6, 1, 7, 1),
    Sketcher.Constraint("Coincident", 7, 2, 8, 1),
    Sketcher.Constraint("Coincident", 8, 2, 0, 1),
    Sketcher.Constraint("Horizontal", 0),
    Sketcher.Constraint("Vertical", 2),
    Sketcher.Constraint("Vertical", 5),
    Sketcher.Constraint("Horizontal", 7),
    Sketcher.Constraint("Vertical", 8),
    Sketcher.Constraint("Equal", 1, 3),
    Sketcher.Constraint("Equal", 3, 4),
    Sketcher.Constraint("Equal", 4, 6),
    Sketcher.Constraint("Vertical", 3, 3, 4, 3),
    Sketcher.Constraint("Equal", 2, 5),
    Sketcher.Constraint("Radius", 1, Q("50 mm")),
    Sketcher.Constraint("DistanceX", 0, 2, 0, 1, Q("450 mm")),
    Sketcher.Constraint("DistanceY", 2, 1, 2, 2, Q("250 mm")),
    Sketcher.Constraint("DistanceX", -1, 1, 1, 3, Q("6250 mm")),
    Sketcher.Constraint("DistanceY", -1, 1, 1, 3, Q("1100 mm")),
])
sketch14.setExpression("Constraints[19]", "Params.sketch14_radius")
sketch14.setExpression("Constraints[20]", "Params.sketch14_width")
sketch14.setExpression("Constraints[21]", "Params.sketch14_height")
pad14 = doc.addObject("PartDesign::Pad", "Pad013")
body14.addObject(pad14)
pad14.Profile = sketch14
pad14.setExpression("Length", "Params.pad14_length")
pad14.Reversed = True
body15 = doc.addObject("PartDesign::Body", "Body014")

# Sketch on XZ plane
sketch15 = doc.addObject("Sketcher::SketchObject", "Sketch014")
body15.addObject(sketch15)
sketch15.AttachmentSupport = (doc.getObject("XZ_Plane014"), [""])
sketch15.MapMode = "FlatFace"
sketch15.AttachmentOffset = App.Placement(Vector(0, 0, -10), App.Rotation())
add_polygon(sketch15, [(1088, -1762), (1088, 1362), (4612, 1362), (4612, -1762)])  # lines 0-3
add_polygon(sketch15, [(4588, 1338), (1112, 1338), (1112, -1738), (4588, -1738)])  # lines 4-7
sketch15.addConstraint([
    Sketcher.Constraint("Vertical", 0),
    Sketcher.Constraint("Horizontal", 1),
    Sketcher.Constraint("Vertical", 2),
    Sketcher.Constraint("Horizontal", 3),
    Sketcher.Constraint("Horizontal", 4),
    Sketcher.Constraint("Vertical", 5),
    Sketcher.Constraint("Horizontal", 6),
    Sketcher.Constraint("Vertical", 7),
    Sketcher.Constraint("DistanceX", 1, 1, 1, 2, Q("3525 mm")),
    Sketcher.Constraint("DistanceX", 4, 2, 4, 1, Q("3475 mm")),
    Sketcher.Constraint("DistanceY", 0, 1, 0, 2, Q("3125 mm")),
    Sketcher.Constraint("DistanceY", 5, 2, 5, 1, Q("3075 mm")),
    Sketcher.Constraint("DistanceX", 0, 2, 4, 2, Q("25 mm")),
    Sketcher.Constraint("DistanceY", 4, 2, 0, 2, Q("25 mm")),
    Sketcher.Constraint("DistanceX", -1, 1, 0, 2, Q("1087.5 mm")),
    Sketcher.Constraint("DistanceY", -1, 1, 0, 2, Q("1362.5 mm")),
])
sketch15.setExpression("Constraints[16]", "Params.sketch15_width")
sketch15.setExpression("Constraints[17]", "Params.sketch15_width2")
sketch15.setExpression("Constraints[18]", "Params.sketch15_height")
sketch15.setExpression("Constraints[19]", "Params.sketch15_height2")
pad15 = doc.addObject("PartDesign::Pad", "Pad014")
body15.addObject(pad15)
pad15.Profile = sketch15
pad15.setExpression("Length", "Params.pad15_length")
pad15.Reversed = True

doc.recompute()
